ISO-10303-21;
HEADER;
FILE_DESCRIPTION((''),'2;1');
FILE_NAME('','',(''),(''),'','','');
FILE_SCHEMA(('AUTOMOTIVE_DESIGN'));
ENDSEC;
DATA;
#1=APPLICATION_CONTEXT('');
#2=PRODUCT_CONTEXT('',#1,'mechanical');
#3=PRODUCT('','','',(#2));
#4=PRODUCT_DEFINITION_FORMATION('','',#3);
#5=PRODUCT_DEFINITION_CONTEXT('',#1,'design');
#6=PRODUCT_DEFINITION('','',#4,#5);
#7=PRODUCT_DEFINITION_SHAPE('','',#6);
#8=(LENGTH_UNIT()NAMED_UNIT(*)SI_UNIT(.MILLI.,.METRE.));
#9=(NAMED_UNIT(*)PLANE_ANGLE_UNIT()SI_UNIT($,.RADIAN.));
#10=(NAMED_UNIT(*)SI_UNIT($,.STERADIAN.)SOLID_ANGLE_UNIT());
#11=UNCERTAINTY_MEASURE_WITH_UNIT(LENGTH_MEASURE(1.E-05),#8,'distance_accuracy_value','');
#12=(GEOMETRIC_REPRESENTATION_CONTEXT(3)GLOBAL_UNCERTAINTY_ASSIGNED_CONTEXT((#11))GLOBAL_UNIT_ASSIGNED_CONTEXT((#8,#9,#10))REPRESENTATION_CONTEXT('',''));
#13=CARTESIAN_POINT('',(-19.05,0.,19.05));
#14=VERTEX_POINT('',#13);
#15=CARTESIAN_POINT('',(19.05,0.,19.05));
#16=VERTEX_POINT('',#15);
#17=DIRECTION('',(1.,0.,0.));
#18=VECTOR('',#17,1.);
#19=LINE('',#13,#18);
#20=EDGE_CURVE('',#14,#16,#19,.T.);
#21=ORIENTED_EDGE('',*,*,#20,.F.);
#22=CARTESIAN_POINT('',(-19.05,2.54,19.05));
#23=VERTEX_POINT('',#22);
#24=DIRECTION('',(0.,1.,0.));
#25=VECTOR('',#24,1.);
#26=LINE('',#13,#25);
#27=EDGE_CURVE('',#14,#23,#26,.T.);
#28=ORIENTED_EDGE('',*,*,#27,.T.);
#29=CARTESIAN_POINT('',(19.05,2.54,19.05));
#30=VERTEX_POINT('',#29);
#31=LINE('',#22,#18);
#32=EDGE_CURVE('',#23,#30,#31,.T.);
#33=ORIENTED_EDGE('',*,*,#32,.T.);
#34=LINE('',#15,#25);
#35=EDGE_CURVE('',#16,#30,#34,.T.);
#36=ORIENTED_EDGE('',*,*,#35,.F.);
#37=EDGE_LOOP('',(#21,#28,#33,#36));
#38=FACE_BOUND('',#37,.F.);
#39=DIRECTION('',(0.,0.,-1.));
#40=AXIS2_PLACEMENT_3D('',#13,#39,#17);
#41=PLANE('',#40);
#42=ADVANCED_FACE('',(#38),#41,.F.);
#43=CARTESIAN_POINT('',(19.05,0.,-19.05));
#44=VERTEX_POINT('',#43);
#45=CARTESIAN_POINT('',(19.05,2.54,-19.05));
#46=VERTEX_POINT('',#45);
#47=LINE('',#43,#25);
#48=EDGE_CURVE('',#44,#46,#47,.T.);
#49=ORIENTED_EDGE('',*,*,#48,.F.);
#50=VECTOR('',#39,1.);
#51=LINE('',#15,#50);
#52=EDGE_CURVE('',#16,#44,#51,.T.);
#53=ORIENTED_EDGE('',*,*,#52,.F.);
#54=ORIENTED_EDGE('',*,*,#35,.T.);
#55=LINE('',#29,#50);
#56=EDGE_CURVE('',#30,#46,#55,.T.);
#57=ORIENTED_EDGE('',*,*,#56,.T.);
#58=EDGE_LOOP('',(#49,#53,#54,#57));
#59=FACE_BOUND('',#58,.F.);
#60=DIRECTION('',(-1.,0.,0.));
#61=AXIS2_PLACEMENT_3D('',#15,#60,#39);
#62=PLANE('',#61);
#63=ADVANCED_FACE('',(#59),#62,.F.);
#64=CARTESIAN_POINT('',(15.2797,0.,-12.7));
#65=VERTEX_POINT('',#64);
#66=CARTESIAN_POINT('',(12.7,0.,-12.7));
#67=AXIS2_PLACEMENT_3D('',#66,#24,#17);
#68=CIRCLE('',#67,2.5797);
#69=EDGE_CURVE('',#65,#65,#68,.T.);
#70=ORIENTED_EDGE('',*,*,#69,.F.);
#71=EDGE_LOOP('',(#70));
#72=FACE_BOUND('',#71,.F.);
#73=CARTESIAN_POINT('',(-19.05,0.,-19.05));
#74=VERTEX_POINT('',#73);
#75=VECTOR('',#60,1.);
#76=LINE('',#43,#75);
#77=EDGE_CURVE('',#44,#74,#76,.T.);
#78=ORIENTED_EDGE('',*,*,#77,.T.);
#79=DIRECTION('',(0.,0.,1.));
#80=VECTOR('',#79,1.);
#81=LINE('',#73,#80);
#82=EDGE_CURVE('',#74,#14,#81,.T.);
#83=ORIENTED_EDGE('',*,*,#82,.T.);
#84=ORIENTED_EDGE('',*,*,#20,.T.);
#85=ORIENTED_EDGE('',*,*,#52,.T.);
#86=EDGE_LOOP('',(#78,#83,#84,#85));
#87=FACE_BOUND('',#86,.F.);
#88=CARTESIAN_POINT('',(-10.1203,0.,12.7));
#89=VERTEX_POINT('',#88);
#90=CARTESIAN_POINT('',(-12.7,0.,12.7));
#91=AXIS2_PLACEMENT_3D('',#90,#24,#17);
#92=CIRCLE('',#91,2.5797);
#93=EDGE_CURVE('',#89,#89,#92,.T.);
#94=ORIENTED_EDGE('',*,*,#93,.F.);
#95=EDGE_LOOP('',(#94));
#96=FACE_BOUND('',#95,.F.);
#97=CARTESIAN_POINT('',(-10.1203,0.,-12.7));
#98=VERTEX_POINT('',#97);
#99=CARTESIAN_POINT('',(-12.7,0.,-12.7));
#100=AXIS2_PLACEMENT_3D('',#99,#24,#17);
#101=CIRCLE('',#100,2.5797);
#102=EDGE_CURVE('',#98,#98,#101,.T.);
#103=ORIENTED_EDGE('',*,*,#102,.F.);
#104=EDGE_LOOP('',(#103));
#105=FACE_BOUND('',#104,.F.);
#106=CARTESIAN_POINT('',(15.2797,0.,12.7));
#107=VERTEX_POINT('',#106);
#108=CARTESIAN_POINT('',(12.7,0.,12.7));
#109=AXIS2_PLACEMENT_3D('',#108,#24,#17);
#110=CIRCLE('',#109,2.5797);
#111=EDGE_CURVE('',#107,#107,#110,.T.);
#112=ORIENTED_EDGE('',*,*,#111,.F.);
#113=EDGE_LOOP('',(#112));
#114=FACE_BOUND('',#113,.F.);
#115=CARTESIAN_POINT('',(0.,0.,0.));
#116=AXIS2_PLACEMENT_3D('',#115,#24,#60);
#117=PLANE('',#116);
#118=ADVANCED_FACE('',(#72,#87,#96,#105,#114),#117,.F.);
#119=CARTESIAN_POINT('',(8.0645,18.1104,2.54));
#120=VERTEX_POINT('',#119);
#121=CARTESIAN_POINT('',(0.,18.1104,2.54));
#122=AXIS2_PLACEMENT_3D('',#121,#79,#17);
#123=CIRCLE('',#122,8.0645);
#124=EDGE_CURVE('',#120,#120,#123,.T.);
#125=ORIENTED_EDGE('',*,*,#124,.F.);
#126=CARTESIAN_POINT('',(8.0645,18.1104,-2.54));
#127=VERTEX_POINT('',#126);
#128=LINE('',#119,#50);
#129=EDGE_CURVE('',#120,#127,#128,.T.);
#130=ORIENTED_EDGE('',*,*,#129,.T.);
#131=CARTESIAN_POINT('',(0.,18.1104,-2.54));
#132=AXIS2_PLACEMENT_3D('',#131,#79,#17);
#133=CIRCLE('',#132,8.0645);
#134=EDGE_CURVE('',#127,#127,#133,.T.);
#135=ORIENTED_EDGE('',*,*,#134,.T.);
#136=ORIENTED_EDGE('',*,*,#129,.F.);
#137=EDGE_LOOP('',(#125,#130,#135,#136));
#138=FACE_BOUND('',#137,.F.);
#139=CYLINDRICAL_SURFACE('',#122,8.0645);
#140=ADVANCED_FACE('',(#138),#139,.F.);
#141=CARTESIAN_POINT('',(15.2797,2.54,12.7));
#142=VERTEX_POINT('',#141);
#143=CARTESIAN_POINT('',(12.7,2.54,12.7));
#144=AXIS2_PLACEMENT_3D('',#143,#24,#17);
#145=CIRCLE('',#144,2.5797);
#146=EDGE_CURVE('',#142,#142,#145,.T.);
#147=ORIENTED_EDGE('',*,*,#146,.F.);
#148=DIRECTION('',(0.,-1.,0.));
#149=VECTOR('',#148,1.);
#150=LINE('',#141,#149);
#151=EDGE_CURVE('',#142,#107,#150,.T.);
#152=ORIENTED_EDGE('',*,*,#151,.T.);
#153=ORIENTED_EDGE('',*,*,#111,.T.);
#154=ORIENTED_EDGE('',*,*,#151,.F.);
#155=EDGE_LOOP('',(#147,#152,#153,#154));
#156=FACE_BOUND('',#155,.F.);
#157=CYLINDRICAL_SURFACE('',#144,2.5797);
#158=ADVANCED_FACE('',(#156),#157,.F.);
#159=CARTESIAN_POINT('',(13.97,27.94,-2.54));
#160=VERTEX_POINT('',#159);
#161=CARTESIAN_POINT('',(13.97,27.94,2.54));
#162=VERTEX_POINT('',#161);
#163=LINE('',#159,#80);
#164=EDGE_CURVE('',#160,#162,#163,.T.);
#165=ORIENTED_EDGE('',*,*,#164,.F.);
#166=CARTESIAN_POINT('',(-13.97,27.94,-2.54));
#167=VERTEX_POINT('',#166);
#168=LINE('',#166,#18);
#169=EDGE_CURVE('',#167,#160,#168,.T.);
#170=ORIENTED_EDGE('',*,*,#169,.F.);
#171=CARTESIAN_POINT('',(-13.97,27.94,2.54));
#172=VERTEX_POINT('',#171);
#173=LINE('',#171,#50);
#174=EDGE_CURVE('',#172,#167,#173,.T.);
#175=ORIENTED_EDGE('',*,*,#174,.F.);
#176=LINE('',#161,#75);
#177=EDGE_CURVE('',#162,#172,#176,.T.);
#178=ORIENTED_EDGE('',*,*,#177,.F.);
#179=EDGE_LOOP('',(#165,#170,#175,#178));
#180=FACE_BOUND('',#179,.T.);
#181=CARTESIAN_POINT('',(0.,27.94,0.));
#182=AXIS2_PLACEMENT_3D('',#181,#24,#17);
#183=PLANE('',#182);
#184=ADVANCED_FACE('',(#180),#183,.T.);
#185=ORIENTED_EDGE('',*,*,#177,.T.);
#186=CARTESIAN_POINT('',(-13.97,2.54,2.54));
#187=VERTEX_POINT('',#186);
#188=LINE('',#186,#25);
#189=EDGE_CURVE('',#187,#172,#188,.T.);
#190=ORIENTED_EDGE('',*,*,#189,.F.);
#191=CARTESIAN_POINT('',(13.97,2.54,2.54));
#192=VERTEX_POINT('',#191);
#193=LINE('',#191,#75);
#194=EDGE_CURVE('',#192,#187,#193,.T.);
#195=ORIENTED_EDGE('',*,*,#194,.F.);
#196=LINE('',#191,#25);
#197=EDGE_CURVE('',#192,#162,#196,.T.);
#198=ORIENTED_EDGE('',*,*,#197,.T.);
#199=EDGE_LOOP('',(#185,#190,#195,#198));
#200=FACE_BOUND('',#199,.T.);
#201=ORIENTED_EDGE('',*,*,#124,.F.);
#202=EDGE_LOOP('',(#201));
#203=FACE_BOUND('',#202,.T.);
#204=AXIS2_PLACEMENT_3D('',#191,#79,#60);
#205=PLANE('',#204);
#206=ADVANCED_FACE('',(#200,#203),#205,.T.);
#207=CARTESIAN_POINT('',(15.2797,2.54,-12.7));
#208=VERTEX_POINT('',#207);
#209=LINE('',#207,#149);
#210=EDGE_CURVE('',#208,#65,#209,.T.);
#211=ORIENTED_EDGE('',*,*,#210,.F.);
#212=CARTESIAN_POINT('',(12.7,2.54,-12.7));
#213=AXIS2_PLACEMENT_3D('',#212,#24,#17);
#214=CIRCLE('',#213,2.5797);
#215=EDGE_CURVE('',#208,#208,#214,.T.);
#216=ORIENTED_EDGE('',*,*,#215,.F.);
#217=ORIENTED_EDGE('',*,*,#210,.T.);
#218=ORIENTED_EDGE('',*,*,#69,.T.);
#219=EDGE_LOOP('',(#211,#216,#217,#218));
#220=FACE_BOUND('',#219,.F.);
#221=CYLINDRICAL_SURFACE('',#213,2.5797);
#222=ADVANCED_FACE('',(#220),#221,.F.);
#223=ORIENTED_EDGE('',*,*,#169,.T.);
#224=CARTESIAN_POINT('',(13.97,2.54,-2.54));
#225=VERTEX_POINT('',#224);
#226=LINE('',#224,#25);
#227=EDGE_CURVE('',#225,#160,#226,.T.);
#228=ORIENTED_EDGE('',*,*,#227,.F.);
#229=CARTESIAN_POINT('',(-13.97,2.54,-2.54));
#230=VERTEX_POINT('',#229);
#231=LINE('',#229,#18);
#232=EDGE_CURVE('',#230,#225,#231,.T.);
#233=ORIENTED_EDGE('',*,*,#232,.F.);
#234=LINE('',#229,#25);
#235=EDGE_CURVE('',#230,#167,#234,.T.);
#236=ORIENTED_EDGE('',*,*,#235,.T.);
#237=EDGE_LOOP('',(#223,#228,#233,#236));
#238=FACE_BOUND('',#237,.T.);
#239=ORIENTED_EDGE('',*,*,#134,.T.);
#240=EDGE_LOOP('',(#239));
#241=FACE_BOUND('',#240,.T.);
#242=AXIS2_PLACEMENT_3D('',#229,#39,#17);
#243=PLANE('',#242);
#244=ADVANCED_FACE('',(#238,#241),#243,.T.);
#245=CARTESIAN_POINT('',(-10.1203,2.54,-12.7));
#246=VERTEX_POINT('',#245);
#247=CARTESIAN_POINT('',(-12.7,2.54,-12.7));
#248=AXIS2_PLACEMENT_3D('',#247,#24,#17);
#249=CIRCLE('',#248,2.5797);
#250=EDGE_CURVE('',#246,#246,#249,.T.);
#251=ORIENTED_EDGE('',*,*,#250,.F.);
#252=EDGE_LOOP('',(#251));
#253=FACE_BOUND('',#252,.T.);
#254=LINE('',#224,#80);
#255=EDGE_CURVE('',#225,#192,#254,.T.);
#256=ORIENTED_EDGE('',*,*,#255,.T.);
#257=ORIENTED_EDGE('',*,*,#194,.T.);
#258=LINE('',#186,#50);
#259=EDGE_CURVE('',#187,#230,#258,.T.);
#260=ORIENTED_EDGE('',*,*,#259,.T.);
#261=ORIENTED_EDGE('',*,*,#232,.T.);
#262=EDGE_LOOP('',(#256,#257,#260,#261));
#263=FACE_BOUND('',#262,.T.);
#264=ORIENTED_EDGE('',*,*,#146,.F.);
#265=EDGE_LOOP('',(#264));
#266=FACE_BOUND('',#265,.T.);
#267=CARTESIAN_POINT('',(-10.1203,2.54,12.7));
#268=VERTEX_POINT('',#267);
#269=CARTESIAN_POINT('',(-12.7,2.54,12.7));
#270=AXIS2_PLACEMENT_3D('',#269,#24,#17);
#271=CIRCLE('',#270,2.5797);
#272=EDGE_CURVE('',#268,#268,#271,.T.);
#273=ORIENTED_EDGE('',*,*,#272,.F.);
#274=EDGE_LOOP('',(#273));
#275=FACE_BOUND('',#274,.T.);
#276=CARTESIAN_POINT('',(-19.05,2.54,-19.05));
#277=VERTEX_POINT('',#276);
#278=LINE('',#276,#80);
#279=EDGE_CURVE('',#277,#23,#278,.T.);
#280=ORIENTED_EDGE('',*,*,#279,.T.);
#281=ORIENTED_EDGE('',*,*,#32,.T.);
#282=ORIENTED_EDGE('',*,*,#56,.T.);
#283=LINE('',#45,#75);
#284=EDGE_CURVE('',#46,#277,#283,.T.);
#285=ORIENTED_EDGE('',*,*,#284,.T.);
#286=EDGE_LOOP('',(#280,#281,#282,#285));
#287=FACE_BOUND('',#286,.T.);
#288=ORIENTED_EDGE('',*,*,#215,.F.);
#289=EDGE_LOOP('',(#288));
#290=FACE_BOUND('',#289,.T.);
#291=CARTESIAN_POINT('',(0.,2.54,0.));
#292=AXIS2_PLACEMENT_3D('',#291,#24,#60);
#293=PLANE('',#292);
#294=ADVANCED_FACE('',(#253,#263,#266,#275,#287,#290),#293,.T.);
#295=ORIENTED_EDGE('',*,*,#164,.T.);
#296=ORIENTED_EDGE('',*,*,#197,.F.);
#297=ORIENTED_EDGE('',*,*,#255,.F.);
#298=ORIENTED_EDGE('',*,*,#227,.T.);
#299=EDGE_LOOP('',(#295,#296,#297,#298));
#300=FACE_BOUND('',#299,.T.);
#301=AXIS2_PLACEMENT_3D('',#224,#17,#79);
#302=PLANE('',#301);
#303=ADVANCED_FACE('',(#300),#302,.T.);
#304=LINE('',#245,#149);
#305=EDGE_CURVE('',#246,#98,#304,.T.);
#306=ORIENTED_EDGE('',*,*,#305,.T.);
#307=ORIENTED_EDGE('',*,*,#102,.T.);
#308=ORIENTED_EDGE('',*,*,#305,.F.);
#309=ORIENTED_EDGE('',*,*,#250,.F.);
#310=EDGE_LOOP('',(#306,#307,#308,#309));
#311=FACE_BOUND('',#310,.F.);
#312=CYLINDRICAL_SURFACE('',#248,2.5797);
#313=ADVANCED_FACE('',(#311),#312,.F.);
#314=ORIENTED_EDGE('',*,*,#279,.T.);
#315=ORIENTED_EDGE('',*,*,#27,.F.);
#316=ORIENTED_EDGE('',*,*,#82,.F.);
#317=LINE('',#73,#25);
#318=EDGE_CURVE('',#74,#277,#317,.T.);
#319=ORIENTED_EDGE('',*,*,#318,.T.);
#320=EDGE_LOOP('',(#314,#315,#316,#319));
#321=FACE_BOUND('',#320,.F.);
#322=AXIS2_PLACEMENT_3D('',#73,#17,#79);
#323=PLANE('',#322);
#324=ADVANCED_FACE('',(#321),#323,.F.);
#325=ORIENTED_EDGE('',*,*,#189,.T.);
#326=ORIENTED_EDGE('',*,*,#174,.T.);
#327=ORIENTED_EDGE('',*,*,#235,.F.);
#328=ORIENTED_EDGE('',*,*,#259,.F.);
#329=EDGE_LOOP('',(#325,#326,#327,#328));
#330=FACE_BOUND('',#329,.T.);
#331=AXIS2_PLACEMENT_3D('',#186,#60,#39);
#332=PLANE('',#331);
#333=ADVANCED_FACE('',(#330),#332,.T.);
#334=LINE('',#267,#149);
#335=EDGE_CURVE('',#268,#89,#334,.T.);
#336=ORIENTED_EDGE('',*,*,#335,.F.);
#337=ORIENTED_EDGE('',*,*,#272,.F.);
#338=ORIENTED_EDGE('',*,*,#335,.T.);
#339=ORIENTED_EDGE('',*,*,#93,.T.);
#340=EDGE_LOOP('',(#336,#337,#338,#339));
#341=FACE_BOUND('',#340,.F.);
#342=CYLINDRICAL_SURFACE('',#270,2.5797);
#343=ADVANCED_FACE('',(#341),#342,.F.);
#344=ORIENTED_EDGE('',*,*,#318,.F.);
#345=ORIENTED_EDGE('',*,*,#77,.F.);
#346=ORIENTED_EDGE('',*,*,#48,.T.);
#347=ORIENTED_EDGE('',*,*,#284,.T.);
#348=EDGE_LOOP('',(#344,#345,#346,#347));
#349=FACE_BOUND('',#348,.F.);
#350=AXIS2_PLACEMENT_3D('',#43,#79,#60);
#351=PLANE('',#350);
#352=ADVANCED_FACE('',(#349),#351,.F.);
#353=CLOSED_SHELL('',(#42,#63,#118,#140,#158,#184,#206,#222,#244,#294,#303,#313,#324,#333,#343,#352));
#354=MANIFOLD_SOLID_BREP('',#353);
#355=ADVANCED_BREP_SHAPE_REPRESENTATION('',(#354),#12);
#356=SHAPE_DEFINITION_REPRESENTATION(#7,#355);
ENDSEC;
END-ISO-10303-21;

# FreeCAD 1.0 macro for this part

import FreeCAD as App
import Part
import Sketcher
from FreeCAD import Vector
Q = App.Units.Quantity


def add_polygon(sketch, points):
    """Adds a closed chain of lines whose ends are joined by coincident constraints."""
    first, n = sketch.GeometryCount, len(points)
    for a, b in zip(points, points[1:] + points[:1]):
        sketch.addGeometry(Part.LineSegment(App.Vector(*a, 0), App.Vector(*b, 0)), False)
    for i in range(n):
        sketch.addConstraint(Sketcher.Constraint("Coincident", first + i, 2, first + (i + 1) % n, 1))

doc = App.newDocument("Part")
body = doc.addObject("PartDesign::Body", "Body")

# Sketch on XZ plane
sketch1 = body.newObject("Sketcher::SketchObject", "Sketch")
sketch1.AttachmentSupport = (doc.getObject("XZ_Plane"), [""])
sketch1.MapMode = "FlatFace"
add_polygon(sketch1, [(19, 19), (19, -19), (-19, -19), (-19, 19)])  # lines 0-3
sketch1.addConstraint(Sketcher.Constraint("Vertical", 0))
sketch1.addConstraint(Sketcher.Constraint("Horizontal", 1))
sketch1.addConstraint(Sketcher.Constraint("Vertical", 2))
sketch1.addConstraint(Sketcher.Constraint("Horizontal", 3))
sketch1.addConstraint(Sketcher.Constraint("Symmetric", 0, 2, 2, 2, -1, 1))
sketch1.addConstraint(Sketcher.Constraint("Equal", 3, 0))
sketch1.addConstraint(Sketcher.Constraint("DistanceX", 1, 2, 1, 1, Q("1.5 in")))
pad1 = body.newObject("PartDesign::Pad", "Pad")
pad1.Profile = sketch1
pad1.Length = Q("0.1 in")
pad1.Reversed = True

# Sketch on XZ plane
sketch2 = body.newObject("Sketcher::SketchObject", "Sketch001")
sketch2.AttachmentSupport = (doc.getObject("XZ_Plane"), [""])
sketch2.MapMode = "FlatFace"
sketch2.AttachmentOffset = App.Placement(Vector(0, 0, -0.1 * 25.4), App.Rotation())
add_polygon(sketch2, [(-14, 3), (14, 3), (14, -3), (-14, -3)])  # lines 0-3
sketch2.addConstraint(Sketcher.Constraint("Horizontal", 0))
sketch2.addConstraint(Sketcher.Constraint("Vertical", 1))
sketch2.addConstraint(Sketcher.Constraint("Horizontal", 2))
sketch2.addConstraint(Sketcher.Constraint("Vertical", 3))
sketch2.addConstraint(Sketcher.Constraint("Symmetric", 0, 2, 2, 2, -1, 1))
sketch2.addConstraint(Sketcher.Constraint("DistanceY", 1, 2, 1, 1, Q("0.2 in")))
sketch2.addConstraint(Sketcher.Constraint("DistanceX", 0, 1, 0, 2, Q("1.1 in")))
pad2 = body.newObject("PartDesign::Pad", "Pad001")
pad2.Profile = sketch2
pad2.Length = Q("1 in")
pad2.Reversed = True

# Sketch on XY plane
sketch3 = body.newObject("Sketcher::SketchObject", "Sketch002")
sketch3.AttachmentSupport = (doc.getObject("XY_Plane"), [""])
sketch3.MapMode = "FlatFace"
sketch3.AttachmentOffset = App.Placement(Vector(0, 0, 0.1 * 25.4), App.Rotation())
sketch3.addGeometry(Part.Circle(Vector(0, 18, 0), Vector(0, 0, 1), 8), False)
sketch3.addConstraint(Sketcher.Constraint("PointOnObject", 0, 3, -2))
sketch3.addConstraint(Sketcher.Constraint("Diameter", 0, Q("0.635 in")))
sketch3.addConstraint(Sketcher.Constraint("DistanceY", -1, 1, 0, 3, Q("0.713 in")))
pocket1 = body.newObject("PartDesign::Pocket", "Pocket")
pocket1.Profile = sketch3
pocket1.Length = Q("2 in")

# Sketch on XZ plane
sketch4 = body.newObject("Sketcher::SketchObject", "Sketch003")
sketch4.AttachmentSupport = (doc.getObject("XZ_Plane"), [""])
sketch4.MapMode = "FlatFace"
sketch4.AttachmentOffset = App.Placement(Vector(0, 0, -0.1 * 25.4), App.Rotation())
sketch4.addGeometry(Part.Circle(Vector(-12.7, 12.7, 0), Vector(0, 0, 1), 2.6), False)
sketch4.addGeometry(Part.Circle(Vector(-12.7, -12.7, 0), Vector(0, 0, 1), 2.6), False)
sketch4.addGeometry(Part.Circle(Vector(12.7, -12.7, 0), Vector(0, 0, 1), 2.6), False)
sketch4.addGeometry(Part.Circle(Vector(12.7, 12.7, 0), Vector(0, 0, 1), 2.6), False)
sketch4.addConstraint(Sketcher.Constraint("Equal", 0, 1))
sketch4.addConstraint(Sketcher.Constraint("Equal", 1, 2))
sketch4.addConstraint(Sketcher.Constraint("Equal", 2, 3))
sketch4.addConstraint(Sketcher.Constraint("Symmetric", 0, 3, 2, 3, -1, 1))
sketch4.addConstraint(Sketcher.Constraint("Symmetric", 1, 3, 3, 3, -1, 1))
sketch4.addConstraint(Sketcher.Constraint("Symmetric", 1, 3, 2, 3, -2))
sketch4.addConstraint(Sketcher.Constraint("Diameter", 0, Q("0.203126 in")))
sketch4.addConstraint(Sketcher.Constraint("DistanceY", 1, 3, 0, 3, Q("1 in")))
sketch4.addConstraint(Sketcher.Constraint("DistanceX", 1, 3, 2, 3, Q("1 in")))
pocket2 = body.newObject("PartDesign::Pocket", "Pocket001")
pocket2.Profile = sketch4
pocket2.Length = Q("2 in")
pocket2.Reversed = True

doc.recompute()
